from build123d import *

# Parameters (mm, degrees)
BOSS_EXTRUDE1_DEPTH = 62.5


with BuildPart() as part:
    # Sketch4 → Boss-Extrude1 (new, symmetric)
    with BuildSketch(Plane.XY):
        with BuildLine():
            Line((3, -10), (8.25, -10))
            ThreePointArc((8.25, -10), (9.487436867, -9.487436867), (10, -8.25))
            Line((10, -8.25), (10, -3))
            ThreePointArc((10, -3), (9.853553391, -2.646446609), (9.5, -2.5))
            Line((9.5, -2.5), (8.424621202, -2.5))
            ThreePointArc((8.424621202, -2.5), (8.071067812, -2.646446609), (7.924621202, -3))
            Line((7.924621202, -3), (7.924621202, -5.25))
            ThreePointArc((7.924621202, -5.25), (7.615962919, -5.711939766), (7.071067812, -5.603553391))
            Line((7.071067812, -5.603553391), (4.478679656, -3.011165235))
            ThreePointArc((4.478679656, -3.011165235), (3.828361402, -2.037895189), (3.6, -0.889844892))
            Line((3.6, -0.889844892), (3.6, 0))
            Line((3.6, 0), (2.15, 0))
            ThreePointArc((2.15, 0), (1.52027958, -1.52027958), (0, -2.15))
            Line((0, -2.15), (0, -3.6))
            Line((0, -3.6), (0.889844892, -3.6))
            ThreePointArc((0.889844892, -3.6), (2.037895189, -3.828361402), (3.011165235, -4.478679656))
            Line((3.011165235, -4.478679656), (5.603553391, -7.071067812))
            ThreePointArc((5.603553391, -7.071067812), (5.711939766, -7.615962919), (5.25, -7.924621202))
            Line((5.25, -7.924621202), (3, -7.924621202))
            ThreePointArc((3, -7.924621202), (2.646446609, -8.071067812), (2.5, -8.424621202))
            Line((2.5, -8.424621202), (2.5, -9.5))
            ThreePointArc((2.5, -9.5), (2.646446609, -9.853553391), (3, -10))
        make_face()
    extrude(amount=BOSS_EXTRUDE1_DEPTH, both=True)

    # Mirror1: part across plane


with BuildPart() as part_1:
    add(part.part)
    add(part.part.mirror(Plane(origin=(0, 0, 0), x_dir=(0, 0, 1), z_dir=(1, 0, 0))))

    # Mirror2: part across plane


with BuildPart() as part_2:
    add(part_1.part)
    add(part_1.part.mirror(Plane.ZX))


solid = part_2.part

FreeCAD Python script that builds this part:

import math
import FreeCAD as App
import Part
import Sketcher

V = App.Vector

doc = App.newDocument("Part")
body = doc.addObject("PartDesign::Body", "Body")

sketch1 = body.newObject("Sketcher::SketchObject", "Sketch")
sketch1.AttachmentSupport = (doc.getObject("XY_Plane"), [""])
sketch1.MapMode = "FlatFace"
sketch1.addGeometry([
    Part.LineSegment(V(3, -10, 0), V(8.25, -10, 0)),
    Part.ArcOfCircle(Part.Circle(V(8.25, -8.25, 0), V(0, 0, 1), 1.75), math.radians(-90), math.radians(0)),
    Part.LineSegment(V(10, -8.25, 0), V(10, -3, 0)),
    Part.ArcOfCircle(Part.Circle(V(9.5, -3, 0), V(0, 0, 1), 0.5), math.radians(0), math.radians(90)),
    Part.LineSegment(V(9.5, -2.5, 0), V(8.42, -2.5, 0)),
    Part.ArcOfCircle(Part.Circle(V(8.42, -3, 0), V(0, 0, 1), 0.5), math.radians(90), math.radians(180)),
    Part.LineSegment(V(7.92, -3, 0), V(7.92, -5.25, 0)),
    Part.ArcOfCircle(Part.Circle(V(7.42, -5.25, 0), V(0, 0, 1), 0.5), math.radians(-135), math.radians(0)),
    Part.LineSegment(V(7.07, -5.6, 0), V(4.48, -3.01, 0)),
    Part.ArcOfCircle(Part.Circle(V(6.6, -0.89, 0), V(0, 0, 1), 3), math.radians(180), math.radians(225)),
    Part.LineSegment(V(3.6, -0.89, 0), V(3.6, 0, 0)),
    Part.LineSegment(V(3.6, 0, 0), V(2.15, 0, 0)),
    Part.ArcOfCircle(Part.Circle(V(0, 0, 0), V(0, 0, 1), 2.15), math.radians(-90), math.radians(0)),
    Part.LineSegment(V(0, -2.15, 0), V(0, -3.6, 0)),
    Part.LineSegment(V(0, -3.6, 0), V(0.89, -3.6, 0)),
    Part.ArcOfCircle(Part.Circle(V(0.89, -6.6, 0), V(0, 0, 1), 3), math.radians(45), math.radians(90)),
    Part.LineSegment(V(3.01, -4.48, 0), V(5.6, -7.07, 0)),
    Part.ArcOfCircle(Part.Circle(V(5.25, -7.42, 0), V(0, 0, 1), 0.5), math.radians(-90), math.radians(45)),
    Part.LineSegment(V(5.25, -7.92, 0), V(3, -7.92, 0)),
    Part.ArcOfCircle(Part.Circle(V(3, -8.42, 0), V(0, 0, 1), 0.5), math.radians(90), math.radians(180)),
    Part.LineSegment(V(2.5, -8.42, 0), V(2.5, -9.5, 0)),
    Part.ArcOfCircle(Part.Circle(V(3, -9.5, 0), V(0, 0, 1), 0.5), math.radians(180), math.radians(270)),
], False)
sketch1.addConstraint([
    Sketcher.Constraint("Tangent", 0, 2, 1, 1),
    Sketcher.Constraint("Tangent", 1, 2, 2, 1),
    Sketcher.Constraint("Tangent", 2, 2, 3, 1),
    Sketcher.Constraint("Tangent", 3, 2, 4, 1),
    Sketcher.Constraint("Tangent", 4, 2, 5, 1),
    Sketcher.Constraint("Tangent", 5, 2, 6, 1),
    Sketcher.Constraint("Tangent", 6, 2, 7, 2),
    Sketcher.Constraint("Tangent", 7, 1, 8, 1),
    Sketcher.Constraint("Tangent", 8, 2, 9, 2),
    Sketcher.Constraint("Tangent", 9, 1, 10, 1),
    Sketcher.Constraint("Coincident", 10, 2, 11, 1),
    Sketcher.Constraint("Coincident", 11, 2, 12, 2),
    Sketcher.Constraint("Coincident", 12, 1, 13, 1),
    Sketcher.Constraint("Coincident", 13, 2, 14, 1),
    Sketcher.Constraint("Tangent", 14, 2, 15, 2),
    Sketcher.Constraint("Tangent", 15, 1, 16, 1),
    Sketcher.Constraint("Tangent", 16, 2, 17, 2),
    Sketcher.Constraint("Tangent", 17, 1, 18, 1),
    Sketcher.Constraint("Tangent", 18, 2, 19, 1),
    Sketcher.Constraint("Tangent", 19, 2, 20, 1),
    Sketcher.Constraint("Tangent", 20, 2, 21, 1),
    Sketcher.Constraint("Tangent", 21, 2, 0, 1),
    Sketcher.Constraint("Horizontal", 0),
    Sketcher.Constraint("Vertical", 2),
    Sketcher.Constraint("Horizontal", 4),
    Sketcher.Constraint("Vertical", 6),
    Sketcher.Constraint("Vertical", 10),
    Sketcher.Constraint("Horizontal", 11),
    Sketcher.Constraint("Vertical", 13),
    Sketcher.Constraint("Horizontal", 14),
    Sketcher.Constraint("Horizontal", 18),
    Sketcher.Constraint("Vertical", 20),
    Sketcher.Constraint("Coincident", 12, 3, -1, 1),
    Sketcher.Constraint("Equal", 3, 5),
    Sketcher.Constraint("Equal", 5, 7),
    Sketcher.Constraint("Equal", 9, 15),
    Sketcher.Constraint("Equal", 7, 17),
    Sketcher.Constraint("Equal", 17, 19),
    Sketcher.Constraint("Equal", 19, 21),
    Sketcher.Constraint("PointOnObject", 10, 2, -1),
    Sketcher.Constraint("PointOnObject", 12, 1, -2),
    Sketcher.Constraint("Parallel", 8, 16),
    Sketcher.Constraint("Equal", 0, 2),
    Sketcher.Constraint("Equal", 18, 6),
    Sketcher.Constraint("Equal", 14, 10),
    Sketcher.Constraint("Equal", 11, 13),
    Sketcher.Constraint("Equal", 4, 20),
    Sketcher.Constraint("Equal", 8, 16),
    Sketcher.Constraint("Radius", 9, 3.0),
    Sketcher.Constraint("Radius", 3, 0.5),
    Sketcher.Constraint("Radius", 1, 1.75),
    Sketcher.Constraint("Radius", 12, 2.15),
    Sketcher.Constraint("DistanceY", 3, 3, -1, 1, 3.0),
    Sketcher.Constraint("DistanceY", 0, 2, -1, 1, 10.0),
    Sketcher.Constraint("DistanceY", 1, 3, 7, 3, 3.0),
    Sketcher.Constraint("DistanceX", 11, 2, 11, 1, 1.45),
    Sketcher.Constraint("DistanceX", 4, 2, 4, 1, 1.075379),
])
pad1 = body.newObject("PartDesign::Pad", "Pad")
pad1.Profile = sketch1
pad1.Length = 125
pad1.Midplane = True
body2 = doc.addObject("PartDesign::Body", "Body001")
doc.recompute()

body2.BaseFeature = body
doc.recompute()

mirroring = doc.addObject("Part::Mirroring", "Mirroring")
mirroring.Source = body
mirroring.Base = V(0, 0, 0)
mirroring.Normal = V(1, 0, 0)
body3 = doc.addObject("PartDesign::Body", "Body002")
body3.BaseFeature = mirroring
boolean = body2.newObject("PartDesign::Boolean", "Boolean")
boolean.Type = "Fuse"
boolean.addObjects([body3])
doc.recompute()
body4 = doc.addObject("PartDesign::Body", "Body003")
doc.recompute()

body4.BaseFeature = body2
doc.recompute()

mirroring2 = doc.addObject("Part::Mirroring", "Mirroring001")
mirroring2.Source = body2
mirroring2.Base = V(0, 0, 0)
mirroring2.Normal = V(0, 1, 0)
body5 = doc.addObject("PartDesign::Body", "Body004")
body5.BaseFeature = mirroring2
boolean2 = body4.newObject("PartDesign::Boolean", "Boolean001")
boolean2.Type = "Fuse"
boolean2.addObjects([body5])
doc.recompute()
mirroring.Visibility = False
mirroring2.Visibility = False

doc.recompute()
